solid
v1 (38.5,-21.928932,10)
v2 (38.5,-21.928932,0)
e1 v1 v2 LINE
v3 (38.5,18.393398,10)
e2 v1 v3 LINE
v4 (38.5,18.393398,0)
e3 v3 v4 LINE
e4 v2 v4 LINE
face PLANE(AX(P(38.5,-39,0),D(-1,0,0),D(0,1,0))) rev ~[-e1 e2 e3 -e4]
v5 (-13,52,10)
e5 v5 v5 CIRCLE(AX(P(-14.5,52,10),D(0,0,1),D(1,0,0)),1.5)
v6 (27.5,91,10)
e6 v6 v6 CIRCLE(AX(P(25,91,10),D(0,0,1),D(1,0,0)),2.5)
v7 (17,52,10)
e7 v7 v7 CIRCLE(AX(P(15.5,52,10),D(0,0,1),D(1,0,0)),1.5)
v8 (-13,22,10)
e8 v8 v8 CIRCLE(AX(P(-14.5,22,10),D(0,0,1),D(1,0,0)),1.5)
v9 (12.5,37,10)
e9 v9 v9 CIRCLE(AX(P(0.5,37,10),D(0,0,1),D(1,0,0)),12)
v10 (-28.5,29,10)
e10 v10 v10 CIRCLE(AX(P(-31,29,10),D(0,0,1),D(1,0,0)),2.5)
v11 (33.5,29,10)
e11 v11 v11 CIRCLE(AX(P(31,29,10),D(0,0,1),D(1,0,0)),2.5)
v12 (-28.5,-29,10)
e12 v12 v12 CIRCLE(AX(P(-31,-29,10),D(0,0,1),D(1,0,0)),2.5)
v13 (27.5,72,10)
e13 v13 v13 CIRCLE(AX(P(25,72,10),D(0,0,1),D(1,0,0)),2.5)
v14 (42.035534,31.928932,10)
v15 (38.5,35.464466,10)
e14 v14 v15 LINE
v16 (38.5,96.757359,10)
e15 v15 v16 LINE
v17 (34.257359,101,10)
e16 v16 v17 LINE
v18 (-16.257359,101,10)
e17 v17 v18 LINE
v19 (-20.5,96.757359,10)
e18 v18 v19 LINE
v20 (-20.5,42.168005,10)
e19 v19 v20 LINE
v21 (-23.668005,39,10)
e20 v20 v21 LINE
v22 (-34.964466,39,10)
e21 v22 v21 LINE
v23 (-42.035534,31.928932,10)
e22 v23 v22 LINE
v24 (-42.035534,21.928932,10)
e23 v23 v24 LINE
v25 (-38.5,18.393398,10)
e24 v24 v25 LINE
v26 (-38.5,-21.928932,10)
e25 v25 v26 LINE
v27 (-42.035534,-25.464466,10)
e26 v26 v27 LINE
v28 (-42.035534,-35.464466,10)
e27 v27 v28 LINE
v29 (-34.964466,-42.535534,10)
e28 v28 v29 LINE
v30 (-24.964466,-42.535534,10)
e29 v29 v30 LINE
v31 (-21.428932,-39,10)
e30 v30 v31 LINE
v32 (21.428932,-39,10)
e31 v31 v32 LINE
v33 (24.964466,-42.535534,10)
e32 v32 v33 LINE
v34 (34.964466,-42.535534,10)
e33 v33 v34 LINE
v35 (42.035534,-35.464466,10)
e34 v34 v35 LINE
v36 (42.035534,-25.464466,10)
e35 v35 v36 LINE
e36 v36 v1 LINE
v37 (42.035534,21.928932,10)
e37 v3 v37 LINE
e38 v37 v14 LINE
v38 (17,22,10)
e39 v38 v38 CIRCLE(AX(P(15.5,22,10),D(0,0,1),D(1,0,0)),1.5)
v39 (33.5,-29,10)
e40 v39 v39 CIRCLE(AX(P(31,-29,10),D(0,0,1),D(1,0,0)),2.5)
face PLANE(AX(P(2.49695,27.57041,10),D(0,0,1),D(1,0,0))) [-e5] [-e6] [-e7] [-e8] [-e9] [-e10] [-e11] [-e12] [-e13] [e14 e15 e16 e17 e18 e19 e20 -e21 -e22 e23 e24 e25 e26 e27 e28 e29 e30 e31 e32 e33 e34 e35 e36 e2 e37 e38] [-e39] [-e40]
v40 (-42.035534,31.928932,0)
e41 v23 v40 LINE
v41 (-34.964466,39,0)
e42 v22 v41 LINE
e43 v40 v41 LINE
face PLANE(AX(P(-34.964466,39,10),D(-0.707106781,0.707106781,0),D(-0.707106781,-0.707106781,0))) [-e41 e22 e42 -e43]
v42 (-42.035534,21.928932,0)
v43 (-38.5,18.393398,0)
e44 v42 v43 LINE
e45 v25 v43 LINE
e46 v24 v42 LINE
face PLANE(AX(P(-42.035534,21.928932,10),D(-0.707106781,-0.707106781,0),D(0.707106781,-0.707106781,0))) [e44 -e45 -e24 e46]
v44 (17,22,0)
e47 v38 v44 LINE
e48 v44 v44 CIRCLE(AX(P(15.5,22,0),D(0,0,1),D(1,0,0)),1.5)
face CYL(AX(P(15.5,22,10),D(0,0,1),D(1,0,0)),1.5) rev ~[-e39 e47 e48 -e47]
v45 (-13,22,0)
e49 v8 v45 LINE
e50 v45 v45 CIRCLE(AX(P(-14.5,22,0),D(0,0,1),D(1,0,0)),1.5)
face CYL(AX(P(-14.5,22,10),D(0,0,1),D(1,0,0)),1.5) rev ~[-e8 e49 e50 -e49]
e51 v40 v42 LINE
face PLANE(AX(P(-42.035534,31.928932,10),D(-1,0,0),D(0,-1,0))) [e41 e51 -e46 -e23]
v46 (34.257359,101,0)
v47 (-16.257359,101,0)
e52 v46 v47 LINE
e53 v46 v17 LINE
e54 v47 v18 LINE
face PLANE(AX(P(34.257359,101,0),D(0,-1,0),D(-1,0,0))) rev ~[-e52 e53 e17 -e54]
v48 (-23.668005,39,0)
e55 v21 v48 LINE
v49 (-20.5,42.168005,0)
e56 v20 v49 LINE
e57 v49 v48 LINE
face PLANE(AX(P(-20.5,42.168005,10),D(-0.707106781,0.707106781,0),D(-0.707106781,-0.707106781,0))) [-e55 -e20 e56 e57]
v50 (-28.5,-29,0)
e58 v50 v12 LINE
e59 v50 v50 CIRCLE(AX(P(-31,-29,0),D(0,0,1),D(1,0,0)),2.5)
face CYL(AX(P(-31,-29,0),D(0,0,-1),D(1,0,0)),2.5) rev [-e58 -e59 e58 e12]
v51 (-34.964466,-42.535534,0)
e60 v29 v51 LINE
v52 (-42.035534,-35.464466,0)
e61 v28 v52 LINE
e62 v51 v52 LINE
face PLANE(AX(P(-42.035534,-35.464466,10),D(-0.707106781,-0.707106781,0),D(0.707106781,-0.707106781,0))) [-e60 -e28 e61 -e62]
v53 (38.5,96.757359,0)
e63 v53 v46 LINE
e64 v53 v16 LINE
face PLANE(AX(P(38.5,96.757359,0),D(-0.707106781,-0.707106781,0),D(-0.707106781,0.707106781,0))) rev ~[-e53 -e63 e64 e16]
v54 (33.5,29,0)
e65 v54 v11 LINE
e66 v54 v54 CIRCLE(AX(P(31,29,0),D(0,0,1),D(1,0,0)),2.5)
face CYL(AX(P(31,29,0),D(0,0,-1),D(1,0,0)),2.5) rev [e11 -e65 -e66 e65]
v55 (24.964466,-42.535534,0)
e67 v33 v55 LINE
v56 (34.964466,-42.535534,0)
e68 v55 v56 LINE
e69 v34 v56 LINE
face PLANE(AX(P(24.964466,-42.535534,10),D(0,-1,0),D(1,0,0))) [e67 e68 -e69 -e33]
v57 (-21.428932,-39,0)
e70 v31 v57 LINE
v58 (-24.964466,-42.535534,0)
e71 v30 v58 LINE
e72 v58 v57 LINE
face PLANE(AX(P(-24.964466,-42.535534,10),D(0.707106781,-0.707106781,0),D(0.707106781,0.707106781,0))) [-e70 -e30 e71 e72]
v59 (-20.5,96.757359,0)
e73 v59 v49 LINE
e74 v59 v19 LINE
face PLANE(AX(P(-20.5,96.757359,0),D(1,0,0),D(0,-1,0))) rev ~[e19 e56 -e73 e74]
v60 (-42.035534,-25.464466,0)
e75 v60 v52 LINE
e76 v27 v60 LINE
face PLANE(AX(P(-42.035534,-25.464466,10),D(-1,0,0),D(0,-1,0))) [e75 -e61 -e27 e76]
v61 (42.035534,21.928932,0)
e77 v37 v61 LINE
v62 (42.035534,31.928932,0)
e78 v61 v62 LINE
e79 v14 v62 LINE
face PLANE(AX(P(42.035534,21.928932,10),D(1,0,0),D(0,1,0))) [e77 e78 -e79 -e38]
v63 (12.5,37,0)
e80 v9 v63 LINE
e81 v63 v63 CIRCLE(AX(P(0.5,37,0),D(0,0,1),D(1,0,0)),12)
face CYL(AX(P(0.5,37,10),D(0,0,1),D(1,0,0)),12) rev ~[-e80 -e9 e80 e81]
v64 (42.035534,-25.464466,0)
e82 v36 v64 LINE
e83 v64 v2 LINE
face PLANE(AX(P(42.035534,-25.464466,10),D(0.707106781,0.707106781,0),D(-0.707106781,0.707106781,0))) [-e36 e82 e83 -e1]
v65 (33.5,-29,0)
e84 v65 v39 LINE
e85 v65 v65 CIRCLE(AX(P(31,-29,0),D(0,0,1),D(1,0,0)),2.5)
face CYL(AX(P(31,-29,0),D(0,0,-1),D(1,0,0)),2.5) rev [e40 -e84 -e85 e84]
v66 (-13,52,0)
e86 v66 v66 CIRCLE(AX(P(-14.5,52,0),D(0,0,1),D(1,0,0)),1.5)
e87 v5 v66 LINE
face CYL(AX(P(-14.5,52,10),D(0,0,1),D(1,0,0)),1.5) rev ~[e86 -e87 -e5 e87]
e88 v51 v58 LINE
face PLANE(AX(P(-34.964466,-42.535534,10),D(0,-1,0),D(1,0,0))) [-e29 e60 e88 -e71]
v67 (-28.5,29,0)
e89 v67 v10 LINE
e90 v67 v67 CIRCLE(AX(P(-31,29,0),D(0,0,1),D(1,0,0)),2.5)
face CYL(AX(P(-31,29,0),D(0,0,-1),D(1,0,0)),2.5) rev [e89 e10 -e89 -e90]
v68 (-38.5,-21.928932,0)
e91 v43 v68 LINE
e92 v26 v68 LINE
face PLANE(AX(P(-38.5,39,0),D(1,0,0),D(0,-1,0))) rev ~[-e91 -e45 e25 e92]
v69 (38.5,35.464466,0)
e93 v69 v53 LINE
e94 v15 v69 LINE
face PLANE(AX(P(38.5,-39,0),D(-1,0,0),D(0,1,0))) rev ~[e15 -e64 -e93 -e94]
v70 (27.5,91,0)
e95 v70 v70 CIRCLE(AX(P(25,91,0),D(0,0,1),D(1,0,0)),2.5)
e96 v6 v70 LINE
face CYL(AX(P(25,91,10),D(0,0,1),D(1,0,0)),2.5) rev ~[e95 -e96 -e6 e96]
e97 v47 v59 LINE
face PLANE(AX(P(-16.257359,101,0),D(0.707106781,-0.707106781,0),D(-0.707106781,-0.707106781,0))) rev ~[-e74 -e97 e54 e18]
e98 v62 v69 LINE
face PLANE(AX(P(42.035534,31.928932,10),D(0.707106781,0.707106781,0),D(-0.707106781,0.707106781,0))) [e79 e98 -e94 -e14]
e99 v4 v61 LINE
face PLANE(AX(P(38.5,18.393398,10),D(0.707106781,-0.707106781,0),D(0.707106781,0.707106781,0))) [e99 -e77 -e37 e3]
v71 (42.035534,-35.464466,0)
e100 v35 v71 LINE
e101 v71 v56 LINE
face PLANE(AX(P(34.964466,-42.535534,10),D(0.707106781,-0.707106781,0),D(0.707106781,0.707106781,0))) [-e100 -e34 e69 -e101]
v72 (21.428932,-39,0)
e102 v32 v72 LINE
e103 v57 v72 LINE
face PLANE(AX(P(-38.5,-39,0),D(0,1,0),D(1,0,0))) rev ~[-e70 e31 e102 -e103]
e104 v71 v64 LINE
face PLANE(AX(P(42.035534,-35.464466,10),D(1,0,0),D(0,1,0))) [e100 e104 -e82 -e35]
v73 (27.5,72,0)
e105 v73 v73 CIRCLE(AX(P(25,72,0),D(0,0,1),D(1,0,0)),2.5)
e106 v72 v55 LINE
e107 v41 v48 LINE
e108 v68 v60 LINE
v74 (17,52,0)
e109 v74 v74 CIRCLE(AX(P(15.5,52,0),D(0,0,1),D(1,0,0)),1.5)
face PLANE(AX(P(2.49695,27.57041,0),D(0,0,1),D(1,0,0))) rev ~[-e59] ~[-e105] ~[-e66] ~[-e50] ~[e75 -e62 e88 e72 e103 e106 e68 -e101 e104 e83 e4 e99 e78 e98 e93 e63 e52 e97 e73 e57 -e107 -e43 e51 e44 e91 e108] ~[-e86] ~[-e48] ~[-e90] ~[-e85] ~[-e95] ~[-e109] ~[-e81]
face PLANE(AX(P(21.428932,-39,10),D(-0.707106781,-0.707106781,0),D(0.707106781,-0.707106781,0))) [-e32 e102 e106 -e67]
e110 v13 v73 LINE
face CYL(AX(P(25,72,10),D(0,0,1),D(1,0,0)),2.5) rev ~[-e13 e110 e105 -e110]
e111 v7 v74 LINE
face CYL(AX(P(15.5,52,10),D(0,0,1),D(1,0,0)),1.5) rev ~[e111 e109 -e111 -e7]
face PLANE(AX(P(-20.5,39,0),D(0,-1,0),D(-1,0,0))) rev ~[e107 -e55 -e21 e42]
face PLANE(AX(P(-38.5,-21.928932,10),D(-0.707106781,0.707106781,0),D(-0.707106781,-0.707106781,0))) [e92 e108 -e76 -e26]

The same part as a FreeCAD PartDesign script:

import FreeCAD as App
import Part
import Sketcher
from FreeCAD import Vector
Q = App.Units.Quantity


def add_polygon(sketch, points):
    """Adds a closed chain of lines whose ends are joined by coincident constraints."""
    first, n = sketch.GeometryCount, len(points)
    for a, b in zip(points, points[1:] + points[:1]):
        sketch.addGeometry(Part.LineSegment(App.Vector(*a, 0), App.Vector(*b, 0)), False)
    for i in range(n):
        sketch.addConstraint(Sketcher.Constraint("Coincident", first + i, 2, first + (i + 1) % n, 1))

doc = App.newDocument("Part")
body = doc.addObject("PartDesign::Body", "Body")

sketch1 = body.newObject("Sketcher::SketchObject", "Sketch")
sketch1.AttachmentSupport = (doc.getObject("XY_Plane"), [""])
sketch1.MapMode = "FlatFace"
add_polygon(sketch1, [(-20.5, 39), (-38.5, 39), (-38.5, -39), (38.5, -39), (38.5, 96.8), (34.3, 101), (-16.3, 101), (-20.5, 96.8)])
sketch1.addGeometry(Part.Circle(Vector(-31, -29, 0), Vector(0, 0, 1), 2.5), False)
sketch1.addGeometry(Part.Circle(Vector(31, -29, 0), Vector(0, 0, 1), 2.5), False)
sketch1.addGeometry(Part.Circle(Vector(-31, 29, 0), Vector(0, 0, 1), 2.5), False)
sketch1.addGeometry(Part.Circle(Vector(31, 29, 0), Vector(0, 0, 1), 2.5), False)
sketch1.addConstraint([
    Sketcher.Constraint("Horizontal", 0),
    Sketcher.Constraint("Vertical", 1),
    Sketcher.Constraint("Horizontal", 2),
    Sketcher.Constraint("Vertical", 3),
    Sketcher.Constraint("Horizontal", 5),
    Sketcher.Constraint("Vertical", 7),
    Sketcher.Constraint("Equal", 8, 9),
    Sketcher.Constraint("Equal", 9, 10),
    Sketcher.Constraint("Equal", 10, 11),
    Sketcher.Constraint("Symmetric", 9, 3, 10, 3, -1, 1),
    Sketcher.Constraint("Symmetric", 8, 3, 11, 3, -1, 1),
    Sketcher.Constraint("Symmetric", 0, 2, 2, 2, -1, 1),
    Sketcher.Constraint("Symmetric", 8, 3, 9, 3, -2),
    Sketcher.Constraint("Perpendicular", 4, 6),
    Sketcher.Constraint("Horizontal", 3, 2, 6, 2),
    Sketcher.Constraint("Equal", 4, 6),
    Sketcher.Constraint("Diameter", 8, Q("5 mm")),
    Sketcher.Constraint("DistanceX", 0, 2, 0, 1, Q("18 mm")),
    Sketcher.Constraint("DistanceX", 2, 1, 2, 2, Q("77 mm")),
    Sketcher.Constraint("DistanceY", 1, 2, 1, 1, Q("78 mm")),
    Sketcher.Constraint("Distance", 4, Q("6 mm")),
    Sketcher.Constraint("DistanceX", 8, 3, -1, 1, Q("31 mm")),
    Sketcher.Constraint("DistanceY", 8, 3, -1, 1, Q("29 mm")),
    Sketcher.Constraint("DistanceY", -1, 1, 4, 2, Q("101 mm")),
])
pad1 = body.newObject("PartDesign::Pad", "Pad")
pad1.Profile = sketch1
pad1.Length = 10

sketch2 = body.newObject("Sketcher::SketchObject", "Sketch001")
sketch2.AttachmentSupport = (doc.getObject("XY_Plane"), [""])
sketch2.MapMode = "FlatFace"
sketch2.AttachmentOffset = App.Placement(Vector(0, 0, 10), App.Rotation())
add_polygon(sketch2, [(-38.5, 18.4), (-35, 39), (-42, 31.9), (-42, 21.9)])
add_polygon(sketch2, [(35, 39), (38.5, 18.4), (42, 21.9), (42, 31.9)])
add_polygon(sketch2, [(38.5, -21.9), (38.5, -30.5), (30, -39), (21.4, -39), (25, -42.5), (35, -42.5), (42, -35.5), (42, -25.5)])
add_polygon(sketch2, [(-38.5, -30.5), (-38.5, -21.9), (-42, -25.5), (-42, -35.5), (-35, -42.5), (-25, -42.5), (-21.4, -39), (-30, -39)])
add_polygon(sketch2, [(-20.5, 42.2), (-23.7, 39), (-20.5, 39)])
sketch2.addConstraint([
    Sketcher.Constraint("Vertical", 2),
    Sketcher.Constraint("Vertical", 6),
    Sketcher.Constraint("Vertical", 8),
    Sketcher.Constraint("Horizontal", 10),
    Sketcher.Constraint("Horizontal", 12),
    Sketcher.Constraint("Vertical", 14),
    Sketcher.Constraint("Vertical", 16),
    Sketcher.Constraint("Vertical", 18),
    Sketcher.Constraint("Horizontal", 20),
    Sketcher.Constraint("Horizontal", 22),
    Sketcher.Constraint("Horizontal", 25),
    Sketcher.Constraint("Vertical", 26),
    Sketcher.Constraint("Symmetric", 3, 2, 4, 2, -2),
    Sketcher.Constraint("Symmetric", 2, 2, 5, 2, -2),
    Sketcher.Constraint("Symmetric", 0, 2, 7, 2, -2),
    Sketcher.Constraint("Symmetric", 15, 2, 16, 2, -2),
    Sketcher.Constraint("Symmetric", 14, 2, 17, 2, -2),
    Sketcher.Constraint("Symmetric", 12, 2, 19, 2, -2),
    Sketcher.Constraint("Symmetric", 10, 2, 21, 2, -2),
    Sketcher.Constraint("Perpendicular", 1, 3),
    Sketcher.Constraint("Perpendicular", 3, 5),
    Sketcher.Constraint("Perpendicular", 5, 7),
    Sketcher.Constraint("Perpendicular", 7, 9),
    Sketcher.Constraint("Perpendicular", 9, 11),
    Sketcher.Constraint("Perpendicular", 11, 13),
    Sketcher.Constraint("Perpendicular", 13, 15),
    Sketcher.Constraint("Perpendicular", 17, 19),
    Sketcher.Constraint("Perpendicular", 19, 21),
    Sketcher.Constraint("Perpendicular", 21, 23),
    Sketcher.Constraint("Perpendicular", 23, 24),
    Sketcher.Constraint("Horizontal", 8, 2, 23, 2),
    Sketcher.Constraint("Horizontal", 7, 2, 24, 2),
    Sketcher.Constraint("Vertical", 4, 2, 8, 2),
    Sketcher.Constraint("Vertical", 7, 2, 12, 2),
    Sketcher.Constraint("Vertical", 6, 2, 13, 2),
    Sketcher.Constraint("Equal", 20, 2),
    Sketcher.Constraint("Equal", 22, 8),
    Sketcher.Constraint("Equal", 6, 14),
    Sketcher.Constraint("DistanceX", 12, 1, 12, 2, Q("10 mm")),
    Sketcher.Constraint("Distance", 1, Q("10 mm")),
    Sketcher.Constraint("Distance", 3, Q("5 mm")),
    Sketcher.Constraint("DistanceY", -1, 1, 0, 2, Q("39 mm")),
    Sketcher.Constraint("DistanceY", 9, 2, -1, 1, Q("39 mm")),
    Sketcher.Constraint("DistanceX", 3, 2, 4, 2, Q("77 mm")),
    Sketcher.Constraint("DistanceX", 9, 2, 7, 2, Q("5 mm")),
    Sketcher.Constraint("DistanceX", 3, 2, 25, 2, Q("18 mm")),
    Sketcher.Constraint("DistanceX", 25, 1, 25, 2, Q("3.168005 mm")),
])
pad2 = body.newObject("PartDesign::Pad", "Pad001")
pad2.Profile = sketch2
pad2.Type = "UpToLast"
pad2.Reversed = True

sketch3 = body.newObject("Sketcher::SketchObject", "Sketch002")
sketch3.AttachmentSupport = (doc.getObject("XY_Plane"), [""])
sketch3.MapMode = "FlatFace"
sketch3.AttachmentOffset = App.Placement(Vector(0, 0, 10), App.Rotation())
add_polygon(sketch3, [(-38.5, 39), (-38.5, 35.5), (-35, 39)])
sketch3.addGeometry(Part.Circle(Vector(25, 72, 0), Vector(0, 0, 1), 2.5), False)
sketch3.addGeometry(Part.Circle(Vector(25, 91, 0), Vector(0, 0, 1), 2.5), False)
sketch3.addGeometry(Part.Circle(Vector(0.5, 37, 0), Vector(0, 0, 1), 12), False)
sketch3.addGeometry(Part.Circle(Vector(-14.5, 52, 0), Vector(0, 0, 1), 1.5), False)
sketch3.addGeometry(Part.Circle(Vector(15.5, 52, 0), Vector(0, 0, 1), 1.5), False)
sketch3.addGeometry(Part.Circle(Vector(15.5, 22, 0), Vector(0, 0, 1), 1.5), False)
sketch3.addGeometry(Part.Circle(Vector(-14.5, 22, 0), Vector(0, 0, 1), 1.5), False)
sketch3.addConstraint([
    Sketcher.Constraint("Vertical", 0),
    Sketcher.Constraint("Horizontal", 2),
    Sketcher.Constraint("Equal", 3, 4),
    Sketcher.Constraint("Equal", 6, 7),
    Sketcher.Constraint("Equal", 7, 8),
    Sketcher.Constraint("Equal", 8, 9),
    Sketcher.Constraint("Horizontal", 6, 3, 7, 3),
    Sketcher.Constraint("Horizontal", 8, 3, 9, 3),
    Sketcher.Constraint("Vertical", 3, 3, 4, 3),
    Sketcher.Constraint("Vertical", 7, 3, 8, 3),
    Sketcher.Constraint("Vertical", 6, 3, 9, 3),
    Sketcher.Constraint("Equal", 2, 0),
    Sketcher.Constraint("Diameter", 3, Q("5 mm")),
    Sketcher.Constraint("Diameter", 5, Q("24 mm")),
    Sketcher.Constraint("Diameter", 6, Q("3 mm")),
    Sketcher.Constraint("Distance", 1, Q("5 mm")),
    Sketcher.Constraint("DistanceX", -1, 1, 3, 3, Q("25 mm")),
    Sketcher.Constraint("DistanceY", -1, 1, 3, 3, Q("72 mm")),
    Sketcher.Constraint("DistanceY", -1, 1, 4, 3, Q("91 mm")),
    Sketcher.Constraint("DistanceY", -1, 1, 5, 3, Q("37 mm")),
    Sketcher.Constraint("DistanceY", -1, 1, 6, 3, Q("52 mm")),
    Sketcher.Constraint("DistanceY", -1, 1, 8, 3, Q("22 mm")),
    Sketcher.Constraint("DistanceY", -1, 1, 1, 2, Q("39 mm")),
    Sketcher.Constraint("DistanceX", 6, 3, 5, 3, Q("15 mm")),
    Sketcher.Constraint("DistanceX", 5, 3, 7, 3, Q("15 mm")),
    Sketcher.Constraint("DistanceX", 0, 2, 9, 3, Q("24 mm")),
    Sketcher.Constraint("DistanceX", -1, 1, 5, 3, Q("0.5 mm")),
])
pocket1 = body.newObject("PartDesign::Pocket", "Pocket")
pocket1.Profile = sketch3
pocket1.Type = "ThroughAll"

doc.recompute()
